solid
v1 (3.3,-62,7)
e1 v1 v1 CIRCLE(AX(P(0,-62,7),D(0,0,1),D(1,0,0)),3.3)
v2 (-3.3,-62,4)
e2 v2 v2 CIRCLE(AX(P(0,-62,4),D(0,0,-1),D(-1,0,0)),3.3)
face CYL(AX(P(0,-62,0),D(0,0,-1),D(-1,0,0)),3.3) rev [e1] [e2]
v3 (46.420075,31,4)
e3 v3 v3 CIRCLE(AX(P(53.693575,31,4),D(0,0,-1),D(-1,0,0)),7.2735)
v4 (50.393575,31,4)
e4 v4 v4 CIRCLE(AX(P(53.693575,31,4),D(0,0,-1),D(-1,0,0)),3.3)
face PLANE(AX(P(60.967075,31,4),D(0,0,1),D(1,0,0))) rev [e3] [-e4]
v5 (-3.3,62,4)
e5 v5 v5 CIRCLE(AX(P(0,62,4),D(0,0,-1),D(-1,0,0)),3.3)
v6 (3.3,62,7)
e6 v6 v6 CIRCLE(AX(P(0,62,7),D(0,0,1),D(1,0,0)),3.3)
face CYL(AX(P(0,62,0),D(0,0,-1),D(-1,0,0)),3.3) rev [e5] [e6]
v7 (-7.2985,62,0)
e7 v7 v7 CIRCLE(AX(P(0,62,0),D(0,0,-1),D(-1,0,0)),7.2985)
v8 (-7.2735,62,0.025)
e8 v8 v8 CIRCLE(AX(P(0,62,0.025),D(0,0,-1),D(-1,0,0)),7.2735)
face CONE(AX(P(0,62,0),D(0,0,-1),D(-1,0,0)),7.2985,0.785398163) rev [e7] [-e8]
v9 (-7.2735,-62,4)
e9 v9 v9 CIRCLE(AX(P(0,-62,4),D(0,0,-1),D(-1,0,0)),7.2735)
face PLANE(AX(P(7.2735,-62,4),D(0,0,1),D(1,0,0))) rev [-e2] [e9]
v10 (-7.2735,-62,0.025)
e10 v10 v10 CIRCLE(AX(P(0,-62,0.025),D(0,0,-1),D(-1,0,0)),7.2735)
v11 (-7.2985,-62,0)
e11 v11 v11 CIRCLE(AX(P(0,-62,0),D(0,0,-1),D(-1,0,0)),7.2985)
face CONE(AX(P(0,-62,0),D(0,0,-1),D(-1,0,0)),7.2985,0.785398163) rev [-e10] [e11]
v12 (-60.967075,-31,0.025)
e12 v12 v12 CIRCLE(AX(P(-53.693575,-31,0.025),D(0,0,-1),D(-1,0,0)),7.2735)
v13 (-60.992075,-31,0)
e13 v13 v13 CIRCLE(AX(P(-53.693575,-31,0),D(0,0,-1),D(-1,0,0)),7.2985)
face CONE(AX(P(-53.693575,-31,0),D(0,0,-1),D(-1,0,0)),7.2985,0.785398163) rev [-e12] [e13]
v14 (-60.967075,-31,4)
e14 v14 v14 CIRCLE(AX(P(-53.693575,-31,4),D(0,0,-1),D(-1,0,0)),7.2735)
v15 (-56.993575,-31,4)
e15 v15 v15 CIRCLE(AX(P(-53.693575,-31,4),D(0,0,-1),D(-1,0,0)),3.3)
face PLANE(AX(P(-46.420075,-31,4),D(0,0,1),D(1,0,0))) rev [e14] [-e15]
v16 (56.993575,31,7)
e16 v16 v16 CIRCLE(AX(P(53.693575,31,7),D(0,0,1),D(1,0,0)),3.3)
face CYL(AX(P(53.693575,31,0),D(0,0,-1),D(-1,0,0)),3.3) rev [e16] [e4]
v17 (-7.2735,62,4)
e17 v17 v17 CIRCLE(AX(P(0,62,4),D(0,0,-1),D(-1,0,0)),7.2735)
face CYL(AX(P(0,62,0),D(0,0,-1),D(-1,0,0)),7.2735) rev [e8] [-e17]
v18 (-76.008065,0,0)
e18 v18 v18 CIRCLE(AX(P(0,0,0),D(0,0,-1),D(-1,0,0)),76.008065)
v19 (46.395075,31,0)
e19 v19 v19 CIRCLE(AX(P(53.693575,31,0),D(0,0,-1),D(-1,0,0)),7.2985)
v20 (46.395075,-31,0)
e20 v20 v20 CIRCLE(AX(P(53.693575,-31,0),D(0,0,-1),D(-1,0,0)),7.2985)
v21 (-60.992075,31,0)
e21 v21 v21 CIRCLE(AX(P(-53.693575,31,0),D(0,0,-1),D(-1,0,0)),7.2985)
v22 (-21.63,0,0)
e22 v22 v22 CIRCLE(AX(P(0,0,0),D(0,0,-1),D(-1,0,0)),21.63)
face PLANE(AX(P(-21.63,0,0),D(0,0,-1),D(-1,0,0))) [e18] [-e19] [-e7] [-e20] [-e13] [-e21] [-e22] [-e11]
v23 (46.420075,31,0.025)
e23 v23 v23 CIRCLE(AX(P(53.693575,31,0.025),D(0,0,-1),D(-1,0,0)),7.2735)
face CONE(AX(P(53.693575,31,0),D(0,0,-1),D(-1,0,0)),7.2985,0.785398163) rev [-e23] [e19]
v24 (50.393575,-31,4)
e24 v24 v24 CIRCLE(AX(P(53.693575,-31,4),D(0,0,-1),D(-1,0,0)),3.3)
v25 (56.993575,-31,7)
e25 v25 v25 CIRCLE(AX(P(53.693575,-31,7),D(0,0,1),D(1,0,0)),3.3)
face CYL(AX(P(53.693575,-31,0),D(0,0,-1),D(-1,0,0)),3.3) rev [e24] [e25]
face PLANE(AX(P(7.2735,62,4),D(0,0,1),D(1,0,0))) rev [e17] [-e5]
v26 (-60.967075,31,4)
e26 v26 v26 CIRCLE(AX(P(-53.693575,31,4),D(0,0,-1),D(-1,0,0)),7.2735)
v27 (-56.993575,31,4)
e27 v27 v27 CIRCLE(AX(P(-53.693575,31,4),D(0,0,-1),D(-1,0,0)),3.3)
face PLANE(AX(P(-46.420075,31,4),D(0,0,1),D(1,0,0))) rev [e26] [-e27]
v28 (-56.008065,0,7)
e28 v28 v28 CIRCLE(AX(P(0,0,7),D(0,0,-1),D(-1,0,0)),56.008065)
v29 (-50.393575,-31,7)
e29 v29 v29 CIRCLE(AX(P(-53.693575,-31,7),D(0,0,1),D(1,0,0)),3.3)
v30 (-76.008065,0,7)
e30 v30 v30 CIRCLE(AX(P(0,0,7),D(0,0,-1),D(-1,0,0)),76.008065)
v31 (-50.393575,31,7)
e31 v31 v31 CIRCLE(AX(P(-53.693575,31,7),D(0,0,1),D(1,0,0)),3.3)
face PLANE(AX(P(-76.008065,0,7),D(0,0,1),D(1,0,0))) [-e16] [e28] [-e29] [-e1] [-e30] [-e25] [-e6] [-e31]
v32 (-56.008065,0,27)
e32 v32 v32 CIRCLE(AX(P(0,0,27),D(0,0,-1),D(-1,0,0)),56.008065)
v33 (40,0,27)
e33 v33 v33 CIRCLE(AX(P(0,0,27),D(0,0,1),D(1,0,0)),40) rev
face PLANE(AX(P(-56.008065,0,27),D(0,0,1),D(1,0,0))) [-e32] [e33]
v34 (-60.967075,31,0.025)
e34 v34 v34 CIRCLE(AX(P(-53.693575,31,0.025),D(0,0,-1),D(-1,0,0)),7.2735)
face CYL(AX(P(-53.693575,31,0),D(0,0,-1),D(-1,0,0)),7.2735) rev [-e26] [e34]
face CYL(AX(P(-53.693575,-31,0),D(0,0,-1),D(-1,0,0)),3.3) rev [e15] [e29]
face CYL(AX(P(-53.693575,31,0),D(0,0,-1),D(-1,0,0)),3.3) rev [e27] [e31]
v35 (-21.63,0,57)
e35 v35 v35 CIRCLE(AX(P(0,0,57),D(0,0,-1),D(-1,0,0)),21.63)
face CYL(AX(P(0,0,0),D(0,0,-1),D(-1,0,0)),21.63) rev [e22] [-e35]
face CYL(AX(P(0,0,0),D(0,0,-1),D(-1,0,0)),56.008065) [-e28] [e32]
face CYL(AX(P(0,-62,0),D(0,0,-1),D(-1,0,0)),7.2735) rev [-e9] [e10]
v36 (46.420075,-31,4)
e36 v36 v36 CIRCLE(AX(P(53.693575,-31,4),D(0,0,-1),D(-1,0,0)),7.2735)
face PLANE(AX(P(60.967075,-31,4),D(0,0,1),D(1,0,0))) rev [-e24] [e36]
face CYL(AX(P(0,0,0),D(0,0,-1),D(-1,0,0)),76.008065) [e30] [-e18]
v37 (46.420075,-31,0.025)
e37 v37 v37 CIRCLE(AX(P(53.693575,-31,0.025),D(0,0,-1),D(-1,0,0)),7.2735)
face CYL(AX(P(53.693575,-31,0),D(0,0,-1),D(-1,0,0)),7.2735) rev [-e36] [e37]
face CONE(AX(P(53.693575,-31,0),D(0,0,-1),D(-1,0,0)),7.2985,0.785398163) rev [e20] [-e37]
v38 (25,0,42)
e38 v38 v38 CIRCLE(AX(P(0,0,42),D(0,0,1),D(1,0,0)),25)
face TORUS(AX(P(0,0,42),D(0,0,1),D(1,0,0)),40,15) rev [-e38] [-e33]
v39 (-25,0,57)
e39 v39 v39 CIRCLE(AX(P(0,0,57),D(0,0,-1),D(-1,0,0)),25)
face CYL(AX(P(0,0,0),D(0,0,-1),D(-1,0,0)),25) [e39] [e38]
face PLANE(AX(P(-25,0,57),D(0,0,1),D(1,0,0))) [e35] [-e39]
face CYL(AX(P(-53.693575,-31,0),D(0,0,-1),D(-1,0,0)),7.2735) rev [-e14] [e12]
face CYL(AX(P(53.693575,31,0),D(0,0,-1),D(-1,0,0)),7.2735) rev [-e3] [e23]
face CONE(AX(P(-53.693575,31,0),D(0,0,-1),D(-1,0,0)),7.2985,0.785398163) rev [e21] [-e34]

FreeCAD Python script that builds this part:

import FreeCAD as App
import Part
import Sketcher
Q = App.Units.Quantity


def edges_at(feature, points):
    """Names of the edges that pass closest to the given points."""
    edges = feature.Shape.Edges
    near = lambda p: min(range(len(edges)), key=lambda i: edges[i].distToShape(Part.Vertex(*p))[0])
    return sorted({f"Edge{near(p) + 1}" for p in points})

doc = App.newDocument("Part")
body = doc.addObject("PartDesign::Body", "Body")

# Sketch on XZ plane
sketch1 = body.newObject("Sketcher::SketchObject", "Sketch")
sketch1.AttachmentSupport = (doc.getObject("XZ_Plane"), [""])
sketch1.MapMode = "FlatFace"
sketch1.addGeometry(Part.LineSegment(App.Vector(-76, 0, 0), App.Vector(-76, 7, 0)), False)
sketch1.addGeometry(Part.LineSegment(App.Vector(-76, 7, 0), App.Vector(-56, 7, 0)), False)
sketch1.addGeometry(Part.LineSegment(App.Vector(-56, 7, 0), App.Vector(-56, 27, 0)), False)
sketch1.addGeometry(Part.LineSegment(App.Vector(-56, 27, 0), App.Vector(-25, 27, 0)), False)
sketch1.addGeometry(Part.LineSegment(App.Vector(-25, 27, 0), App.Vector(-25, 57, 0)), False)
sketch1.addGeometry(Part.LineSegment(App.Vector(-25, 57, 0), App.Vector(-21.6, 57, 0)), False)
sketch1.addGeometry(Part.LineSegment(App.Vector(-21.6, 57, 0), App.Vector(-21.6, 0, 0)), False)
sketch1.addGeometry(Part.LineSegment(App.Vector(-21.6, 0, 0), App.Vector(-76, 0, 0)), False)
sketch1.addConstraint(Sketcher.Constraint("Coincident", 0, 2, 1, 1))
sketch1.addConstraint(Sketcher.Constraint("Coincident", 1, 2, 2, 1))
sketch1.addConstraint(Sketcher.Constraint("Coincident", 2, 2, 3, 1))
sketch1.addConstraint(Sketcher.Constraint("Coincident", 3, 2, 4, 1))
sketch1.addConstraint(Sketcher.Constraint("Coincident", 4, 2, 5, 1))
sketch1.addConstraint(Sketcher.Constraint("Coincident", 5, 2, 6, 1))
sketch1.addConstraint(Sketcher.Constraint("Coincident", 6, 2, 7, 1))
sketch1.addConstraint(Sketcher.Constraint("Coincident", 7, 2, 0, 1))
sketch1.addConstraint(Sketcher.Constraint("Vertical", 0))
sketch1.addConstraint(Sketcher.Constraint("Horizontal", 1))
sketch1.addConstraint(Sketcher.Constraint("Vertical", 2))
sketch1.addConstraint(Sketcher.Constraint("Horizontal", 3))
sketch1.addConstraint(Sketcher.Constraint("Vertical", 4))
sketch1.addConstraint(Sketcher.Constraint("Horizontal", 5))
sketch1.addConstraint(Sketcher.Constraint("Vertical", 6))
sketch1.addConstraint(Sketcher.Constraint("Horizontal", 7))
sketch1.addConstraint(Sketcher.Constraint("PointOnObject", 6, 2, -1))
sketch1.addConstraint(Sketcher.Constraint("Equal", 1, 2))
sketch1.addConstraint(Sketcher.Constraint("DistanceX", 1, 1, 1, 2, 20.0))
sketch1.addConstraint(Sketcher.Constraint("DistanceY", 0, 1, 0, 2, 7.0))
sketch1.addConstraint(Sketcher.Constraint("DistanceY", 4, 1, 4, 2, 30.0))
sketch1.addConstraint(Sketcher.Constraint("DistanceX", 3, 2, -1, 1, 25.0))
sketch1.addConstraint(Sketcher.Constraint("DistanceX", 5, 1, 5, 2, 3.37))
sketch1.addConstraint(Sketcher.Constraint("DistanceX", 3, 1, 3, 2, 31.008065))
revolution = body.newObject("PartDesign::Revolution", "Revolution")
revolution.Profile = sketch1
revolution.ReferenceAxis = (sketch1, ["V_Axis"])
revolution.Angle = 360
doc.recompute()

fillet = body.newObject("PartDesign::Fillet", "Fillet")
fillet.Base = (revolution, edges_at(revolution, [(25, 0, 27)]))
fillet.Radius = 15

# Sketch on YZ plane
sketch2 = body.newObject("Sketcher::SketchObject", "Sketch001")
sketch2.AttachmentSupport = (doc.getObject("YZ_Plane"), [""])
sketch2.MapMode = "FlatFace"
sketch2.addGeometry(Part.LineSegment(App.Vector(62, 57, 0), App.Vector(62, 0, 0)), False)
sketch2.addGeometry(Part.LineSegment(App.Vector(62, 0, 0), App.Vector(69.299, 0, 0)), False)
sketch2.addGeometry(Part.LineSegment(App.Vector(69.299, 0, 0), App.Vector(69.273, 0.025, 0)), False)
sketch2.addGeometry(Part.LineSegment(App.Vector(69.273, 0.025, 0), App.Vector(69.273, 4, 0)), False)
sketch2.addGeometry(Part.LineSegment(App.Vector(69.273, 4, 0), App.Vector(65.3, 4, 0)), False)
sketch2.addGeometry(Part.LineSegment(App.Vector(65.3, 4, 0), App.Vector(65.3, 57, 0)), False)
sketch2.addGeometry(Part.LineSegment(App.Vector(65.3, 57, 0), App.Vector(62, 57, 0)), False)
sketch2.addGeometry(Part.LineSegment(App.Vector(62, 0, 0), App.Vector(62, 57, 0)), True)  # axis
sketch2.addConstraint(Sketcher.Constraint("Coincident", 0, 2, 1, 1))
sketch2.addConstraint(Sketcher.Constraint("Coincident", 1, 2, 2, 1))
sketch2.addConstraint(Sketcher.Constraint("Coincident", 2, 2, 3, 1))
sketch2.addConstraint(Sketcher.Constraint("Coincident", 3, 2, 4, 1))
sketch2.addConstraint(Sketcher.Constraint("Coincident", 4, 2, 5, 1))
sketch2.addConstraint(Sketcher.Constraint("Coincident", 5, 2, 6, 1))
sketch2.addConstraint(Sketcher.Constraint("Coincident", 6, 2, 0, 1))
sketch2.addConstraint(Sketcher.Constraint("Vertical", 0))
sketch2.addConstraint(Sketcher.Constraint("Horizontal", 1))
sketch2.addConstraint(Sketcher.Constraint("Vertical", 3))
sketch2.addConstraint(Sketcher.Constraint("Horizontal", 4))
sketch2.addConstraint(Sketcher.Constraint("Vertical", 5))
sketch2.addConstraint(Sketcher.Constraint("Horizontal", 6))
sketch2.addConstraint(Sketcher.Constraint("Vertical", 7))
sketch2.addConstraint(Sketcher.Constraint("Coincident", 7, 1, 0, 2))
sketch2.addConstraint(Sketcher.Constraint("PointOnObject", 0, 2, -1))
sketch2.addConstraint(Sketcher.Constraint("Horizontal", 5, 2, 7, 2))
sketch2.addConstraint(Sketcher.Constraint("DistanceY", 0, 2, 0, 1, 57.0))
sketch2.addConstraint(Sketcher.Constraint("DistanceY", 5, 1, 5, 2, 53.0))
sketch2.addConstraint(Sketcher.Constraint("Angle", 2, Q("135 deg")))
sketch2.addConstraint(Sketcher.Constraint("DistanceX", 6, 2, 6, 1, 3.3))
sketch2.addConstraint(Sketcher.Constraint("DistanceX", -1, 1, 0, 2, 62.0))
sketch2.addConstraint(Sketcher.Constraint("DistanceY", 3, 1, 3, 2, 3.975))
sketch2.addConstraint(Sketcher.Constraint("DistanceX", 1, 1, 1, 2, 7.2985))
groove = body.newObject("PartDesign::Groove", "Groove")
groove.Profile = sketch2
groove.ReferenceAxis = (sketch2, ["Axis0"])
groove.Angle = 360
doc.recompute()

polarpattern = body.newObject("PartDesign::PolarPattern", "PolarPattern")
polarpattern.Originals = [groove]
polarpattern.Axis = (doc.getObject("Z_Axis"), [""])
polarpattern.Angle = 360
polarpattern.Occurrences = 6
body.Tip = polarpattern

doc.recompute()
